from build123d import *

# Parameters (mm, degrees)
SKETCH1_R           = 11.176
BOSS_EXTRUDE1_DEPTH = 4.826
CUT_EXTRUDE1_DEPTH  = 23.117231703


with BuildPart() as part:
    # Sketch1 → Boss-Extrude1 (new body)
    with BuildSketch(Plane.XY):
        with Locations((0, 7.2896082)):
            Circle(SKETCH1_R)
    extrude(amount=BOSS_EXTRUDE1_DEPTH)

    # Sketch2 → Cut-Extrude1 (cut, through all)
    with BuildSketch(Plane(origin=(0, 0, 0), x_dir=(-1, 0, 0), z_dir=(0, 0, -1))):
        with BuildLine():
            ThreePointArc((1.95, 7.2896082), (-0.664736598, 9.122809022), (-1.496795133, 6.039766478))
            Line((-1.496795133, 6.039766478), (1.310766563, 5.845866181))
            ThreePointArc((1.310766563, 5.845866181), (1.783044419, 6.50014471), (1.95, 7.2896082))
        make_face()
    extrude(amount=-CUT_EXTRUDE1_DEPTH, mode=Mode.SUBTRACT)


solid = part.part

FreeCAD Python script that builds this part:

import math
import FreeCAD as App
import Part
import Sketcher
Q = App.Units.Quantity

doc = App.newDocument("Part")
params = doc.addObject("Spreadsheet::Sheet", "Params")
for row, (alias, value) in enumerate([
    ("sketch1_diameter", "0.88 in"),
    ("pad1_length", "0.19 in"),
], start=1):
    params.set(f"A{row}", alias)
    params.set(f"B{row}", "=" + value)
    params.setAlias(f"B{row}", alias)

body = doc.addObject("PartDesign::Body", "Body")

# Sketch on XY plane
sketch1 = body.newObject("Sketcher::SketchObject", "Sketch")
sketch1.AttachmentSupport = (doc.getObject("XY_Plane"), [""])
sketch1.MapMode = "FlatFace"
sketch1.addGeometry(Part.Circle(App.Vector(0, 7, 0), App.Vector(0, 0, 1), 11), False)
sketch1.addConstraint(Sketcher.Constraint("PointOnObject", 0, 3, -2))
sketch1.addConstraint(Sketcher.Constraint("Diameter", 0, Q("0.88 in")))
sketch1.addConstraint(Sketcher.Constraint("DistanceY", -1, 1, 0, 3, Q("7.289608 mm")))
sketch1.setExpression("Constraints[1]", "Params.sketch1_diameter")
pad1 = body.newObject("PartDesign::Pad", "Pad")
pad1.Profile = sketch1
pad1.setExpression("Length", "Params.pad1_length")

# Sketch on XY plane
sketch2 = body.newObject("Sketcher::SketchObject", "Sketch001")
sketch2.AttachmentSupport = (doc.getObject("XY_Plane"), [""])
sketch2.MapMode = "FlatFace"
sketch2.addGeometry(Part.ArcOfCircle(Part.Circle(App.Vector(0, 7.3, 0), App.Vector(0, 0, 1), 1.9), math.radians(-40), math.radians(180)), False)
sketch2.addGeometry(Part.LineSegment(App.Vector(1.5, 6, 0), App.Vector(-1.3, 5.8, 0)), False)
sketch2.addGeometry(Part.ArcOfCircle(Part.Circle(App.Vector(0, 7.3, 0), App.Vector(0, 0, 1), 1.9), math.radians(180), math.radians(228)), False)
sketch2.addConstraint(Sketcher.Constraint("Coincident", 0, 1, 1, 1))
sketch2.addConstraint(Sketcher.Constraint("Coincident", 1, 2, 2, 2))
sketch2.addConstraint(Sketcher.Constraint("Tangent", 2, 1, 0, 2))
sketch2.addConstraint(Sketcher.Constraint("Equal", 0, 2))
sketch2.addConstraint(Sketcher.Constraint("PointOnObject", 0, 3, -2))
sketch2.addConstraint(Sketcher.Constraint("Horizontal", 0, 3, 2, 1))
sketch2.addConstraint(Sketcher.Constraint("Radius", 0, Q("1.95 mm")))
sketch2.addConstraint(Sketcher.Constraint("DistanceY", 1, 2, 0, 1, Q("0.1939 mm")))
sketch2.addConstraint(Sketcher.Constraint("Distance", 1, Q("2.814249 mm")))
sketch2.addConstraint(Sketcher.Constraint("DistanceY", -1, 1, 0, 3, Q("7.289608 mm")))
pocket1 = body.newObject("PartDesign::Pocket", "Pocket")
pocket1.Profile = sketch2
pocket1.Type = "ThroughAll"
pocket1.Reversed = True

doc.recompute()
